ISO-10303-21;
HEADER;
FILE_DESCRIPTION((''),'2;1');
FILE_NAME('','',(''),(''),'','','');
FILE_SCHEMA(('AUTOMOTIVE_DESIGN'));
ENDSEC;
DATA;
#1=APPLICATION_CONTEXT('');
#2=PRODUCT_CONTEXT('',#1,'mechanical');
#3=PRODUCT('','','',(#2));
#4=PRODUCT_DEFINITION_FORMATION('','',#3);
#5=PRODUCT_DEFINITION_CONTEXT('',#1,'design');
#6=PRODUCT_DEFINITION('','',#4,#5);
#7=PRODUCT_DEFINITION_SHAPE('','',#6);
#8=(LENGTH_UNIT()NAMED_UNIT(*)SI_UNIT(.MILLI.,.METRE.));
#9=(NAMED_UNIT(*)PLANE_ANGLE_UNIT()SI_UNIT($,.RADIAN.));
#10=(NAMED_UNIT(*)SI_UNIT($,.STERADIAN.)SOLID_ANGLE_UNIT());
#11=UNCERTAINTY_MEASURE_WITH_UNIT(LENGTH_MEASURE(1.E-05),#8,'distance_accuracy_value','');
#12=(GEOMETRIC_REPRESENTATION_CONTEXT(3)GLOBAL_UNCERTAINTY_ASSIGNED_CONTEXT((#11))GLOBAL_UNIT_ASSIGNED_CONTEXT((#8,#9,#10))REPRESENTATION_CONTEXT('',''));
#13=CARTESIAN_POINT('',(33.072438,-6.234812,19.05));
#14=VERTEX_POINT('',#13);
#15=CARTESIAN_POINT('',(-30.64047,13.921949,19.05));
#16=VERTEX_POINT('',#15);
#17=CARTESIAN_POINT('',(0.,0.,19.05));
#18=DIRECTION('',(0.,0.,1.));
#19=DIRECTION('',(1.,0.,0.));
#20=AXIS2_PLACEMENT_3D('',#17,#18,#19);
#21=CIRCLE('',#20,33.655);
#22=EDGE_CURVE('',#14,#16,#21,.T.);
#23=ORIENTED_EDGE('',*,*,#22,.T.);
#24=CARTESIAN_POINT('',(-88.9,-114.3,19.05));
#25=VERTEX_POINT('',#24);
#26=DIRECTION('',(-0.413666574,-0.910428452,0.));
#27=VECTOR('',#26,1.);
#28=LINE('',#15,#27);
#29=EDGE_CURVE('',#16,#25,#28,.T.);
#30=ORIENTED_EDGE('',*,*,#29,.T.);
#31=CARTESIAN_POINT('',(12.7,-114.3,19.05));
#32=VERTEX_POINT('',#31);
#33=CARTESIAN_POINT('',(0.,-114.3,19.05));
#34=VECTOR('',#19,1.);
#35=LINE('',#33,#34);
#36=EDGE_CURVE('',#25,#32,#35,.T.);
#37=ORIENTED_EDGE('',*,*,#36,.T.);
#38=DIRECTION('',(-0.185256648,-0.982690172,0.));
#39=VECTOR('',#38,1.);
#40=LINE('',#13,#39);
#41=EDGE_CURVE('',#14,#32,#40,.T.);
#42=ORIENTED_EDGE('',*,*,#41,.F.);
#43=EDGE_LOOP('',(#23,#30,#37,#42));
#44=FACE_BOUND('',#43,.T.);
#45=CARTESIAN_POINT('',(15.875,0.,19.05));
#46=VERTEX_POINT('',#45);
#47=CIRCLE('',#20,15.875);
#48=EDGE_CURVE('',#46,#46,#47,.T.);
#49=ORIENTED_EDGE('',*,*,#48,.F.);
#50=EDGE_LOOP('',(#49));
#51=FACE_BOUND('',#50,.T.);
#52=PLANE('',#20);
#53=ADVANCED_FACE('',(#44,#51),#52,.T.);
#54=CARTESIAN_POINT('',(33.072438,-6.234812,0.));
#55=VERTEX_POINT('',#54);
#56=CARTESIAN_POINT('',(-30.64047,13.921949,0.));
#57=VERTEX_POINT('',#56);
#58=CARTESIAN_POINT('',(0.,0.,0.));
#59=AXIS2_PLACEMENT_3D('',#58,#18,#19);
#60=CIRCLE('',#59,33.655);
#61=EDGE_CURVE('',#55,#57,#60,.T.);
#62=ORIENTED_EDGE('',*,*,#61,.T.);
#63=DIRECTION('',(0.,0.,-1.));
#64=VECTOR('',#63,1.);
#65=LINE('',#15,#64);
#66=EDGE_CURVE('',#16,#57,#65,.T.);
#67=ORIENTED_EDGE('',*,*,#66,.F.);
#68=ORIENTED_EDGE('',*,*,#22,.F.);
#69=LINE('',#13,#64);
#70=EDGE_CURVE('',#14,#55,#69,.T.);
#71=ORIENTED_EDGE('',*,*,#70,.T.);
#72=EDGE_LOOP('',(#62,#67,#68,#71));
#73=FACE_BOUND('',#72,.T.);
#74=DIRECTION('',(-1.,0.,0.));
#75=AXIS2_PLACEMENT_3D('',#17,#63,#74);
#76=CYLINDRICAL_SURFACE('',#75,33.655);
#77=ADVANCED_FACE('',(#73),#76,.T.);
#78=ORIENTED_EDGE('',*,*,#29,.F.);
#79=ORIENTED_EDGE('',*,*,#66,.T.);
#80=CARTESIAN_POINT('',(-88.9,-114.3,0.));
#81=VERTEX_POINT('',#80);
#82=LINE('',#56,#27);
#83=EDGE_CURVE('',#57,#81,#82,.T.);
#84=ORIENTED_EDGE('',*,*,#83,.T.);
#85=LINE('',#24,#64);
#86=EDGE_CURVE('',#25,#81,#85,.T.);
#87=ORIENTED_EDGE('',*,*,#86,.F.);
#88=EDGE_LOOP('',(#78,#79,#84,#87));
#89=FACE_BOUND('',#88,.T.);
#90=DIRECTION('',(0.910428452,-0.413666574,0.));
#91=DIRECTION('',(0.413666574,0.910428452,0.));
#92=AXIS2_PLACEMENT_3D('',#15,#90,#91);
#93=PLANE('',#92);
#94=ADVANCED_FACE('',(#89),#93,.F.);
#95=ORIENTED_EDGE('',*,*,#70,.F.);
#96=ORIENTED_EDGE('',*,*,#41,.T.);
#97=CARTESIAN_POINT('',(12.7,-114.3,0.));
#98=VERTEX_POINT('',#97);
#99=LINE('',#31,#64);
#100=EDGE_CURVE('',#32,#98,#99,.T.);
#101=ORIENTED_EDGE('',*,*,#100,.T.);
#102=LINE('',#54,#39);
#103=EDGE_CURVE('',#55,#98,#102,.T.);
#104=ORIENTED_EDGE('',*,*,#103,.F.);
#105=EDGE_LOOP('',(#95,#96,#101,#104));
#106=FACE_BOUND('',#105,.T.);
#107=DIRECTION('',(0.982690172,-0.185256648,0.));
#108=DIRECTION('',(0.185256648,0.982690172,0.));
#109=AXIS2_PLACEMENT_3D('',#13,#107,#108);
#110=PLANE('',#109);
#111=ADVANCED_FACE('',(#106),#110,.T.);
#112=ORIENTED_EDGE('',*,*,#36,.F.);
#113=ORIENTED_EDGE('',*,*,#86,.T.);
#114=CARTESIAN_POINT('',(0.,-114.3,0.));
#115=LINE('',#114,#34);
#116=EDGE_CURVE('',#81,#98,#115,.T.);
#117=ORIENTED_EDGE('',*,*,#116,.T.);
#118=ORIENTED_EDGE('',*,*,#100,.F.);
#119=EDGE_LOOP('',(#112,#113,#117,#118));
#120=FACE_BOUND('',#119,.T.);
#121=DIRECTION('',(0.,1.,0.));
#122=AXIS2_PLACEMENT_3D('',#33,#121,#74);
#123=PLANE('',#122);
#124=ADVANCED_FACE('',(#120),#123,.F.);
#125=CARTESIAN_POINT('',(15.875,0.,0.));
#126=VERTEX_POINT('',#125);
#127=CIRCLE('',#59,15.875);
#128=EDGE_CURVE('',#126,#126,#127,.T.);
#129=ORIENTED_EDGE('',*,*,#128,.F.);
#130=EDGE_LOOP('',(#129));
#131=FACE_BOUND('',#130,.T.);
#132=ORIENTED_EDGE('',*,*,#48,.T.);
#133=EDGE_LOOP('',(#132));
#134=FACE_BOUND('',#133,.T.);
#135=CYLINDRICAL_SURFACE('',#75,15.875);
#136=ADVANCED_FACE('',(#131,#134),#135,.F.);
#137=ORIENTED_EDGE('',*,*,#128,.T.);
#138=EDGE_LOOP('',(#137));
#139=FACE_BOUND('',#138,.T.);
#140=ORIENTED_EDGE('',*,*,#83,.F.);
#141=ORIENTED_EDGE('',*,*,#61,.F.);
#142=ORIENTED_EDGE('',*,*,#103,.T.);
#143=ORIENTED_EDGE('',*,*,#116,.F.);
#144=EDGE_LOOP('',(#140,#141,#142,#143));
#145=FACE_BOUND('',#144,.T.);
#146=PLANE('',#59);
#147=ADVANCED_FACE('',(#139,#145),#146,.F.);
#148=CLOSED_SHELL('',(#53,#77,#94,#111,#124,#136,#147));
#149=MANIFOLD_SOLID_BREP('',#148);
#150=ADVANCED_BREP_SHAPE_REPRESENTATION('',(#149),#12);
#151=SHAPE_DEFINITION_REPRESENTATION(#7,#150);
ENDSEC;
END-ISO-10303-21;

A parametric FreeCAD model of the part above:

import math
import FreeCAD as App
import Part
import Sketcher
from FreeCAD import Vector
Q = App.Units.Quantity

doc = App.newDocument("Part")
body = doc.addObject("PartDesign::Body", "Body")

# Sketch on XY plane
sketch1 = body.newObject("Sketcher::SketchObject", "Sketch")
sketch1.AttachmentSupport = (doc.getObject("XY_Plane"), [""])
sketch1.MapMode = "FlatFace"
sketch1.addGeometry(Part.LineSegment(Vector(13, -114, 0), Vector(33, -6, 0)), False)
sketch1.addGeometry(Part.ArcOfCircle(Part.Circle(Vector(0, 0, 0), Vector(0, 0, 1), 34), math.radians(-11), math.radians(156)), False)
sketch1.addGeometry(Part.LineSegment(Vector(-31, 14, 0), Vector(-89, -114, 0)), False)
sketch1.addGeometry(Part.LineSegment(Vector(-89, -114, 0), Vector(13, -114, 0)), False)
sketch1.addGeometry(Part.Circle(Vector(0, 0, 0), Vector(0, 0, 1), 16), False)
sketch1.addConstraint(Sketcher.Constraint("Tangent", 0, 2, 1, 1))
sketch1.addConstraint(Sketcher.Constraint("Tangent", 1, 2, 2, 1))
sketch1.addConstraint(Sketcher.Constraint("Coincident", 2, 2, 3, 1))
sketch1.addConstraint(Sketcher.Constraint("Coincident", 3, 2, 0, 1))
sketch1.addConstraint(Sketcher.Constraint("Horizontal", 3))
sketch1.addConstraint(Sketcher.Constraint("Coincident", 1, 3, -1, 1))
sketch1.addConstraint(Sketcher.Constraint("Coincident", 4, 3, -1, 1))
sketch1.addConstraint(Sketcher.Constraint("Diameter", 4, Q("1.25 in")))
sketch1.addConstraint(Sketcher.Constraint("DistanceX", 3, 1, 3, 2, Q("4 in")))
sketch1.addConstraint(Sketcher.Constraint("Radius", 1, Q("1.325 in")))
sketch1.addConstraint(Sketcher.Constraint("DistanceX", 2, 2, -1, 1, Q("3.5 in")))
sketch1.addConstraint(Sketcher.Constraint("DistanceY", 2, 2, -1, 1, Q("4.5 in")))
pad1 = body.newObject("PartDesign::Pad", "Pad")
pad1.Profile = sketch1
pad1.Length = Q("0.75 in")

doc.recompute()
